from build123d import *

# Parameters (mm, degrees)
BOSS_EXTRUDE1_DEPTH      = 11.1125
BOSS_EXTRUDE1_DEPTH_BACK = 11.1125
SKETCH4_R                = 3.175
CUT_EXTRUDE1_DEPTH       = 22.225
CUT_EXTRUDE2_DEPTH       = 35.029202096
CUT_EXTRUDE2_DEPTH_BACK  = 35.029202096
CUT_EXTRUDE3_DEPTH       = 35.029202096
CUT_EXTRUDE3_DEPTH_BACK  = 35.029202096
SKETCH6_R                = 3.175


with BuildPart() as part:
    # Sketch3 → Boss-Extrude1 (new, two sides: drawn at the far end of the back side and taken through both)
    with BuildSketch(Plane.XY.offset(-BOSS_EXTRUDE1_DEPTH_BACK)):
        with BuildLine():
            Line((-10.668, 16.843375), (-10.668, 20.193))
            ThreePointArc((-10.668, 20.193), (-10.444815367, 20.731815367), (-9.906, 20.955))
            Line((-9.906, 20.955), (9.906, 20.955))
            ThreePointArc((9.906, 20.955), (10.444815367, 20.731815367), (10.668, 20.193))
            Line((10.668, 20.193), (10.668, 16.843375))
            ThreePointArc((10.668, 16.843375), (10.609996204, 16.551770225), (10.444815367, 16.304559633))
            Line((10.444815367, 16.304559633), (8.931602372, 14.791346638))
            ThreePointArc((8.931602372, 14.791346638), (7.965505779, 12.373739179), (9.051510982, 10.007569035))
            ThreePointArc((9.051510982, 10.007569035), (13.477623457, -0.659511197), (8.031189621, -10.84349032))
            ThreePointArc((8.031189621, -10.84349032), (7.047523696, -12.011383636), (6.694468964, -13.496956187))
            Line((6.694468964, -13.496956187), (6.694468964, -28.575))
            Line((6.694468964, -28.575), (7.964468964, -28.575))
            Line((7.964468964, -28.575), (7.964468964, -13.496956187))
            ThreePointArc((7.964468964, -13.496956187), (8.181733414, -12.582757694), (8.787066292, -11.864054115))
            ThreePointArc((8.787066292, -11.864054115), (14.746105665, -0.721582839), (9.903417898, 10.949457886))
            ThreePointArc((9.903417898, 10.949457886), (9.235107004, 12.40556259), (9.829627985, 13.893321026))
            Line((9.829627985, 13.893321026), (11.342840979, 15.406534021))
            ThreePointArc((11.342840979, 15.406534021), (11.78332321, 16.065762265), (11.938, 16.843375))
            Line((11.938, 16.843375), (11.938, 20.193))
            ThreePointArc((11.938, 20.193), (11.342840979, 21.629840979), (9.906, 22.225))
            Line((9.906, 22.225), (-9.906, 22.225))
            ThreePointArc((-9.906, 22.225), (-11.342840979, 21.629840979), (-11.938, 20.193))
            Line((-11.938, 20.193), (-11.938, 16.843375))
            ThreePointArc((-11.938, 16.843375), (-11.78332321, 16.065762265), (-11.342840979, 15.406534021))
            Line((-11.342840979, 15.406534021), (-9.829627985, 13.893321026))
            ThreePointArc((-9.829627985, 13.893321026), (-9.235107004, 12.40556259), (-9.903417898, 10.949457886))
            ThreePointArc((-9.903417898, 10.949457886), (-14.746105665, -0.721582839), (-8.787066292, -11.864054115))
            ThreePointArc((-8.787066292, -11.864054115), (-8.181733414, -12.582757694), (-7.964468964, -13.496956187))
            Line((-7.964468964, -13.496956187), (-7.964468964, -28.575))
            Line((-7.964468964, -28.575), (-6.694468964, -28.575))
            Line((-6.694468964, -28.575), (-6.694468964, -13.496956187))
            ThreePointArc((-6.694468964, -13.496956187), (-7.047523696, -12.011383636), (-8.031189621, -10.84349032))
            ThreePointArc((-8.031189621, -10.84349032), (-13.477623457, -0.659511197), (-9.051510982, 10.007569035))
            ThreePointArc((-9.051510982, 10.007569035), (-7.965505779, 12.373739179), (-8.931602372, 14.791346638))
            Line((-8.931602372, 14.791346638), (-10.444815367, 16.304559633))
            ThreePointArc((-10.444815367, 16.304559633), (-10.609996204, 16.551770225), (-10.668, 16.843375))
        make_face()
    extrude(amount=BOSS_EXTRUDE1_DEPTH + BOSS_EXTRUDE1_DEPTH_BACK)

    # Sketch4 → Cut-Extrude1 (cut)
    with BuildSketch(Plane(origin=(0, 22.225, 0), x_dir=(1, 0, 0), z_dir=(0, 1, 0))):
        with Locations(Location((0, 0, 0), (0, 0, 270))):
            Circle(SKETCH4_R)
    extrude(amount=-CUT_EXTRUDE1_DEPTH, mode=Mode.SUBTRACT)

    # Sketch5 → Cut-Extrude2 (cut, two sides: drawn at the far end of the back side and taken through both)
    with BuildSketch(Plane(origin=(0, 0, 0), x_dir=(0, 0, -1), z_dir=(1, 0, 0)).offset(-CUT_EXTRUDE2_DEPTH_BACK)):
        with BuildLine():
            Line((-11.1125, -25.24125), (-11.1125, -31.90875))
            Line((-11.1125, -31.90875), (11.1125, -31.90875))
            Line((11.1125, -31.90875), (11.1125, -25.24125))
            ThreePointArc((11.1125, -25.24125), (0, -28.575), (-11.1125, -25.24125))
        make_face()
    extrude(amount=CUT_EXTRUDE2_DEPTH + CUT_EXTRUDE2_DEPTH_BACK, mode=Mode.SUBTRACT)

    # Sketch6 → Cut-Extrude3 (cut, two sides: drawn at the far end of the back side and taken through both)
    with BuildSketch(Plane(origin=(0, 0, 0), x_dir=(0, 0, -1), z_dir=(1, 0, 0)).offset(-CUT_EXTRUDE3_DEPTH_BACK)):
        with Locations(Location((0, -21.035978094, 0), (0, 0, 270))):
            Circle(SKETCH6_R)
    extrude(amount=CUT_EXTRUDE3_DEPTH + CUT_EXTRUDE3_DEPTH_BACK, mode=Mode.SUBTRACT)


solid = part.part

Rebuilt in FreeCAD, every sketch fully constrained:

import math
import FreeCAD as App
import Part
import Sketcher
Q = App.Units.Quantity

doc = App.newDocument("Part")
body = doc.addObject("PartDesign::Body", "Body")

sketch1 = body.newObject("Sketcher::SketchObject", "Sketch")
sketch1.AttachmentSupport = (doc.getObject("XY_Plane"), [""])
sketch1.MapMode = "FlatFace"
sketch1.addGeometry(Part.LineSegment(App.Vector(-10.7, 16.8, 0), App.Vector(-10.7, 20.2, 0)), False)
sketch1.addGeometry(Part.ArcOfCircle(Part.Circle(App.Vector(-9.9, 20.2, 0), App.Vector(0, 0, 1), 0.8), math.radians(90), math.radians(180)), False)
sketch1.addGeometry(Part.LineSegment(App.Vector(-9.9, 21, 0), App.Vector(9.9, 21, 0)), False)
sketch1.addGeometry(Part.ArcOfCircle(Part.Circle(App.Vector(9.9, 20.2, 0), App.Vector(0, 0, 1), 0.8), math.radians(0), math.radians(90)), False)
sketch1.addGeometry(Part.LineSegment(App.Vector(10.7, 20.2, 0), App.Vector(10.7, 16.8, 0)), False)
sketch1.addGeometry(Part.ArcOfCircle(Part.Circle(App.Vector(9.9, 16.8, 0), App.Vector(0, 0, 1), 0.8), math.radians(-45), math.radians(0)), False)
sketch1.addGeometry(Part.LineSegment(App.Vector(10.4, 16.3, 0), App.Vector(8.9, 14.8, 0)), False)
sketch1.addGeometry(Part.ArcOfCircle(Part.Circle(App.Vector(11.3, 12.5, 0), App.Vector(0, 0, 1), 3.3), math.radians(135), math.radians(228)), False)
sketch1.addGeometry(Part.ArcOfCircle(Part.Circle(App.Vector(0, 0, 0), App.Vector(0, 0, 1), 13.5), math.radians(-53), math.radians(48)), False)
sketch1.addGeometry(Part.ArcOfCircle(Part.Circle(App.Vector(10, -13.5, 0), App.Vector(0, 0, 1), 3.3), math.radians(127), math.radians(180)), False)
sketch1.addGeometry(Part.LineSegment(App.Vector(6.7, -13.5, 0), App.Vector(6.7, -28.6, 0)), False)
sketch1.addGeometry(Part.LineSegment(App.Vector(6.7, -28.6, 0), App.Vector(8, -28.6, 0)), False)
sketch1.addGeometry(Part.LineSegment(App.Vector(8, -28.6, 0), App.Vector(8, -13.5, 0)), False)
sketch1.addGeometry(Part.ArcOfCircle(Part.Circle(App.Vector(10, -13.5, 0), App.Vector(0, 0, 1), 2), math.radians(127), math.radians(180)), False)
sketch1.addGeometry(Part.ArcOfCircle(Part.Circle(App.Vector(0, 0, 0), App.Vector(0, 0, 1), 14.8), math.radians(-53), math.radians(48)), False)
sketch1.addGeometry(Part.ArcOfCircle(Part.Circle(App.Vector(11.3, 12.5, 0), App.Vector(0, 0, 1), 2), math.radians(135), math.radians(228)), False)
sketch1.addGeometry(Part.LineSegment(App.Vector(9.8, 13.9, 0), App.Vector(11.3, 15.4, 0)), False)
sketch1.addGeometry(Part.ArcOfCircle(Part.Circle(App.Vector(9.9, 16.8, 0), App.Vector(0, 0, 1), 2), math.radians(-45), math.radians(0)), False)
sketch1.addGeometry(Part.LineSegment(App.Vector(11.9, 16.8, 0), App.Vector(11.9, 20.2, 0)), False)
sketch1.addGeometry(Part.ArcOfCircle(Part.Circle(App.Vector(9.9, 20.2, 0), App.Vector(0, 0, 1), 2), math.radians(0), math.radians(90)), False)
sketch1.addGeometry(Part.LineSegment(App.Vector(9.9, 22.2, 0), App.Vector(-9.9, 22.2, 0)), False)
sketch1.addGeometry(Part.ArcOfCircle(Part.Circle(App.Vector(-9.9, 20.2, 0), App.Vector(0, 0, 1), 2), math.radians(90), math.radians(180)), False)
sketch1.addGeometry(Part.LineSegment(App.Vector(-11.9, 20.2, 0), App.Vector(-11.9, 16.8, 0)), False)
sketch1.addGeometry(Part.ArcOfCircle(Part.Circle(App.Vector(-9.9, 16.8, 0), App.Vector(0, 0, 1), 2), math.radians(180), math.radians(225)), False)
sketch1.addGeometry(Part.LineSegment(App.Vector(-11.3, 15.4, 0), App.Vector(-9.8, 13.9, 0)), False)
sketch1.addGeometry(Part.ArcOfCircle(Part.Circle(App.Vector(-11.3, 12.5, 0), App.Vector(0, 0, 1), 2), math.radians(-48), math.radians(45)), False)
sketch1.addGeometry(Part.ArcOfCircle(Part.Circle(App.Vector(0, 0, 0), App.Vector(0, 0, 1), 14.8), math.radians(132), math.radians(233)), False)
sketch1.addGeometry(Part.ArcOfCircle(Part.Circle(App.Vector(-10, -13.5, 0), App.Vector(0, 0, 1), 2), math.radians(0), math.radians(53)), False)
sketch1.addGeometry(Part.LineSegment(App.Vector(-8, -13.5, 0), App.Vector(-8, -28.6, 0)), False)
sketch1.addGeometry(Part.LineSegment(App.Vector(-8, -28.6, 0), App.Vector(-6.7, -28.6, 0)), False)
sketch1.addGeometry(Part.LineSegment(App.Vector(-6.7, -28.6, 0), App.Vector(-6.7, -13.5, 0)), False)
sketch1.addGeometry(Part.ArcOfCircle(Part.Circle(App.Vector(-10, -13.5, 0), App.Vector(0, 0, 1), 3.3), math.radians(0), math.radians(53)), False)
sketch1.addGeometry(Part.ArcOfCircle(Part.Circle(App.Vector(0, 0, 0), App.Vector(0, 0, 1), 13.5), math.radians(132), math.radians(233)), False)
sketch1.addGeometry(Part.ArcOfCircle(Part.Circle(App.Vector(-11.3, 12.5, 0), App.Vector(0, 0, 1), 3.3), math.radians(-48), math.radians(45)), False)
sketch1.addGeometry(Part.LineSegment(App.Vector(-8.9, 14.8, 0), App.Vector(-10.4, 16.3, 0)), False)
sketch1.addGeometry(Part.ArcOfCircle(Part.Circle(App.Vector(-9.9, 16.8, 0), App.Vector(0, 0, 1), 0.8), math.radians(180), math.radians(225)), False)
sketch1.addConstraint(Sketcher.Constraint("Tangent", 0, 2, 1, 2))
sketch1.addConstraint(Sketcher.Constraint("Tangent", 1, 1, 2, 1))
sketch1.addConstraint(Sketcher.Constraint("Tangent", 2, 2, 3, 2))
sketch1.addConstraint(Sketcher.Constraint("Tangent", 3, 1, 4, 1))
sketch1.addConstraint(Sketcher.Constraint("Tangent", 4, 2, 5, 2))
sketch1.addConstraint(Sketcher.Constraint("Tangent", 5, 1, 6, 1))
sketch1.addConstraint(Sketcher.Constraint("Tangent", 6, 2, 7, 1))
sketch1.addConstraint(Sketcher.Constraint("Tangent", 7, 2, 8, 2))
sketch1.addConstraint(Sketcher.Constraint("Tangent", 8, 1, 9, 1))
sketch1.addConstraint(Sketcher.Constraint("Tangent", 9, 2, 10, 1))
sketch1.addConstraint(Sketcher.Constraint("Coincident", 10, 2, 11, 1))
sketch1.addConstraint(Sketcher.Constraint("Coincident", 11, 2, 12, 1))
sketch1.addConstraint(Sketcher.Constraint("Tangent", 12, 2, 13, 2))
sketch1.addConstraint(Sketcher.Constraint("Tangent", 13, 1, 14, 1))
sketch1.addConstraint(Sketcher.Constraint("Tangent", 14, 2, 15, 2))
sketch1.addConstraint(Sketcher.Constraint("Tangent", 15, 1, 16, 1))
sketch1.addConstraint(Sketcher.Constraint("Tangent", 16, 2, 17, 1))
sketch1.addConstraint(Sketcher.Constraint("Tangent", 17, 2, 18, 1))
sketch1.addConstraint(Sketcher.Constraint("Tangent", 18, 2, 19, 1))
sketch1.addConstraint(Sketcher.Constraint("Tangent", 19, 2, 20, 1))
sketch1.addConstraint(Sketcher.Constraint("Tangent", 20, 2, 21, 1))
sketch1.addConstraint(Sketcher.Constraint("Tangent", 21, 2, 22, 1))
sketch1.addConstraint(Sketcher.Constraint("Tangent", 22, 2, 23, 1))
sketch1.addConstraint(Sketcher.Constraint("Tangent", 23, 2, 24, 1))
sketch1.addConstraint(Sketcher.Constraint("Tangent", 24, 2, 25, 2))
sketch1.addConstraint(Sketcher.Constraint("Tangent", 25, 1, 26, 1))
sketch1.addConstraint(Sketcher.Constraint("Tangent", 26, 2, 27, 2))
sketch1.addConstraint(Sketcher.Constraint("Tangent", 27, 1, 28, 1))
sketch1.addConstraint(Sketcher.Constraint("Coincident", 28, 2, 29, 1))
sketch1.addConstraint(Sketcher.Constraint("Coincident", 29, 2, 30, 1))
sketch1.addConstraint(Sketcher.Constraint("Tangent", 30, 2, 31, 1))
sketch1.addConstraint(Sketcher.Constraint("Tangent", 31, 2, 32, 2))
sketch1.addConstraint(Sketcher.Constraint("Tangent", 32, 1, 33, 1))
sketch1.addConstraint(Sketcher.Constraint("Tangent", 33, 2, 34, 1))
sketch1.addConstraint(Sketcher.Constraint("Tangent", 34, 2, 35, 2))
sketch1.addConstraint(Sketcher.Constraint("Tangent", 35, 1, 0, 1))
sketch1.addConstraint(Sketcher.Constraint("Vertical", 0))
sketch1.addConstraint(Sketcher.Constraint("Horizontal", 2))
sketch1.addConstraint(Sketcher.Constraint("Vertical", 4))
sketch1.addConstraint(Sketcher.Constraint("Vertical", 10))
sketch1.addConstraint(Sketcher.Constraint("Horizontal", 11))
sketch1.addConstraint(Sketcher.Constraint("Vertical", 12))
sketch1.addConstraint(Sketcher.Constraint("Vertical", 18))
sketch1.addConstraint(Sketcher.Constraint("Horizontal", 20))
sketch1.addConstraint(Sketcher.Constraint("Vertical", 22))
sketch1.addConstraint(Sketcher.Constraint("Vertical", 28))
sketch1.addConstraint(Sketcher.Constraint("Horizontal", 29))
sketch1.addConstraint(Sketcher.Constraint("Vertical", 30))
sketch1.addConstraint(Sketcher.Constraint("Coincident", 8, 3, -1, 1))
sketch1.addConstraint(Sketcher.Constraint("Coincident", 14, 3, -1, 1))
sketch1.addConstraint(Sketcher.Constraint("Coincident", 26, 3, -1, 1))
sketch1.addConstraint(Sketcher.Constraint("Coincident", 32, 3, -1, 1))
sketch1.addConstraint(Sketcher.Constraint("Coincident", 13, 3, 9, 3))
sketch1.addConstraint(Sketcher.Constraint("Coincident", 15, 3, 7, 3))
sketch1.addConstraint(Sketcher.Constraint("Coincident", 17, 3, 5, 3))
sketch1.addConstraint(Sketcher.Constraint("Coincident", 19, 3, 3, 3))
sketch1.addConstraint(Sketcher.Constraint("Coincident", 21, 3, 1, 3))
sketch1.addConstraint(Sketcher.Constraint("Coincident", 31, 3, 27, 3))
sketch1.addConstraint(Sketcher.Constraint("Coincident", 33, 3, 25, 3))
sketch1.addConstraint(Sketcher.Constraint("Coincident", 35, 3, 23, 3))
sketch1.addConstraint(Sketcher.Constraint("Equal", 1, 3))
sketch1.addConstraint(Sketcher.Constraint("Equal", 3, 5))
sketch1.addConstraint(Sketcher.Constraint("Equal", 7, 9))
sketch1.addConstraint(Sketcher.Constraint("Equal", 15, 17))
sketch1.addConstraint(Sketcher.Constraint("Equal", 21, 23))
sketch1.addConstraint(Sketcher.Constraint("Equal", 23, 25))
sketch1.addConstraint(Sketcher.Constraint("Equal", 14, 26))
sketch1.addConstraint(Sketcher.Constraint("Equal", 25, 27))
sketch1.addConstraint(Sketcher.Constraint("Equal", 9, 31))
sketch1.addConstraint(Sketcher.Constraint("Symmetric", 5, 3, 23, 3, -2))
sketch1.addConstraint(Sketcher.Constraint("Symmetric", 11, 2, 28, 2, -2))
sketch1.addConstraint(Sketcher.Constraint("Parallel", 6, 16))
sketch1.addConstraint(Sketcher.Constraint("Perpendicular", 16, 24))
sketch1.addConstraint(Sketcher.Constraint("Horizontal", 15, 3, 25, 3))
sketch1.addConstraint(Sketcher.Constraint("Radius", 1, Q("0.03 in")))
sketch1.addConstraint(Sketcher.Constraint("Radius", 7, Q("0.13 in")))
sketch1.addConstraint(Sketcher.Constraint("Radius", 8, Q("0.53125 in")))
sketch1.addConstraint(Sketcher.Constraint("DistanceX", 2, 1, 2, 2, Q("0.78 in")))
sketch1.addConstraint(Sketcher.Constraint("DistanceX", 9, 3, 7, 3, Q("0.05 in")))
sketch1.addConstraint(Sketcher.Constraint("DistanceY", -1, 1, 1, 3, Q("0.795 in")))
sketch1.addConstraint(Sketcher.Constraint("DistanceY", 10, 2, -1, 1, Q("1.125 in")))
sketch1.addConstraint(Sketcher.Constraint("DistanceY", 25, 1, 24, 2, Q("0.1159001 in")))
pad1 = body.newObject("PartDesign::Pad", "Pad")
pad1.Profile = sketch1
pad1.Type = "TwoLengths"
pad1.Length = Q("0.4375 in")
pad1.Length2 = Q("0.4375 in")

sketch2 = body.newObject("Sketcher::SketchObject", "Sketch001")
sketch2.AttachmentSupport = (doc.getObject("XZ_Plane"), [""])
sketch2.MapMode = "FlatFace"
sketch2.AttachmentOffset = App.Placement(App.Vector(0, 0, -0.875 * 25.4), App.Rotation())
sketch2.addGeometry(Part.Circle(App.Vector(0, 0, 0), App.Vector(0, 0, 1), 3.2), False)
sketch2.addConstraint(Sketcher.Constraint("Coincident", 0, 3, -1, 1))
sketch2.addConstraint(Sketcher.Constraint("Diameter", 0, Q("0.25 in")))
pocket1 = body.newObject("PartDesign::Pocket", "Pocket")
pocket1.Profile = sketch2
pocket1.Length = Q("0.875 in")
pocket1.Reversed = True

sketch3 = body.newObject("Sketcher::SketchObject", "Sketch002")
sketch3.AttachmentSupport = (doc.getObject("YZ_Plane"), [""])
sketch3.MapMode = "FlatFace"
sketch3.addGeometry(Part.LineSegment(App.Vector(-25, 11, 0), App.Vector(-32, 11, 0)), False)
sketch3.addGeometry(Part.LineSegment(App.Vector(-32, 11, 0), App.Vector(-32, -11, 0)), False)
sketch3.addGeometry(Part.LineSegment(App.Vector(-32, -11, 0), App.Vector(-25, -11, 0)), False)
sketch3.addGeometry(Part.ArcOfCircle(Part.Circle(App.Vector(-8, 0, 0), App.Vector(0, 0, 1), 20), math.radians(147), math.radians(213)), False)
sketch3.addConstraint(Sketcher.Constraint("Coincident", 0, 2, 1, 1))
sketch3.addConstraint(Sketcher.Constraint("Coincident", 1, 2, 2, 1))
sketch3.addConstraint(Sketcher.Constraint("Coincident", 2, 2, 3, 2))
sketch3.addConstraint(Sketcher.Constraint("Coincident", 3, 1, 0, 1))
sketch3.addConstraint(Sketcher.Constraint("Horizontal", 0))
sketch3.addConstraint(Sketcher.Constraint("Vertical", 1))
sketch3.addConstraint(Sketcher.Constraint("Horizontal", 2))
sketch3.addConstraint(Sketcher.Constraint("Symmetric", 2, 2, 3, 1, -1))
sketch3.addConstraint(Sketcher.Constraint("DistanceY", 1, 2, 1, 1, Q("0.875 in")))
sketch3.addConstraint(Sketcher.Constraint("DistanceX", 0, 2, 0, 1, Q("0.2625 in")))
sketch3.addConstraint(Sketcher.Constraint("Radius", 3, Q("20.187708 mm")))
sketch3.addConstraint(Sketcher.Constraint("DistanceX", 3, 3, -1, 1, Q("8.387292 mm")))
pocket2 = body.newObject("PartDesign::Pocket", "Pocket001")
pocket2.Profile = sketch3
pocket2.Type = "ThroughAll"
pocket2.Midplane = True

sketch4 = body.newObject("Sketcher::SketchObject", "Sketch003")
sketch4.AttachmentSupport = (doc.getObject("YZ_Plane"), [""])
sketch4.MapMode = "FlatFace"
sketch4.addGeometry(Part.Circle(App.Vector(-21, 0, 0), App.Vector(0, 0, 1), 3.2), False)
sketch4.addConstraint(Sketcher.Constraint("PointOnObject", 0, 3, -1))
sketch4.addConstraint(Sketcher.Constraint("Diameter", 0, Q("0.25 in")))
sketch4.addConstraint(Sketcher.Constraint("DistanceX", 0, 3, -1, 1, Q("21.035978 mm")))
pocket3 = body.newObject("PartDesign::Pocket", "Pocket002")
pocket3.Profile = sketch4
pocket3.Type = "ThroughAll"
pocket3.Midplane = True

doc.recompute()
